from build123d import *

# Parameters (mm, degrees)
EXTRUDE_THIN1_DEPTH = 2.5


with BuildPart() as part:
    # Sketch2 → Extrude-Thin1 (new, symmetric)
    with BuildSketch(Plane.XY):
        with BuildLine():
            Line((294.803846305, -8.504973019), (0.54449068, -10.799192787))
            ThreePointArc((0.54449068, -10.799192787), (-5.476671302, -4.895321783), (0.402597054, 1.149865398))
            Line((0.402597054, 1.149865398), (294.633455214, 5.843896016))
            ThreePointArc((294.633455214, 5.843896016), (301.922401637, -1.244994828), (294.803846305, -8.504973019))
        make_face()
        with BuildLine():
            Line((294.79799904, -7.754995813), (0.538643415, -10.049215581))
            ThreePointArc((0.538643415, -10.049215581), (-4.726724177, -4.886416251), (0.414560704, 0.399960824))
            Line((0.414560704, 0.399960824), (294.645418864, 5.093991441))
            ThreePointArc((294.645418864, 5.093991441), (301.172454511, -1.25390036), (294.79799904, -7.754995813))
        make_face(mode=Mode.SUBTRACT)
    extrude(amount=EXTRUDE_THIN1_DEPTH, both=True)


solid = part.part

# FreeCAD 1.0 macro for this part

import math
import FreeCAD as App
import Part
import Sketcher
from FreeCAD import Vector

doc = App.newDocument("Part")
params = doc.addObject("Spreadsheet::Sheet", "Params")
for row, (alias, value) in enumerate([
    ("pad1_length", "5 mm"),
], start=1):
    params.set(f"A{row}", alias)
    params.set(f"B{row}", "=" + value)
    params.setAlias(f"B{row}", alias)

body = doc.addObject("PartDesign::Body", "Body")

# Sketch on XY plane
sketch1 = doc.addObject("Sketcher::SketchObject", "Sketch")
body.addObject(sketch1)
sketch1.AttachmentSupport = (doc.XY_Plane, [""])
sketch1.MapMode = "FlatFace"
sketch1.addGeometry(Part.LineSegment(Vector(1, -11, 0), Vector(295, -9, 0)), False)
sketch1.addGeometry(Part.ArcOfCircle(Part.Circle(Vector(295, -1, 0), Vector(0, 0, 1), 7), math.radians(-90), math.radians(91)), False)
sketch1.addGeometry(Part.LineSegment(Vector(295, 6, 0), Vector(0, 1, 0)), False)
sketch1.addGeometry(Part.ArcOfCircle(Part.Circle(Vector(0, -5, 0), Vector(0, 0, 1), 6), math.radians(91), math.radians(270)), False)
sketch1.addGeometry(Part.LineSegment(Vector(295, -8, 0), Vector(1, -10, 0)), False)
sketch1.addGeometry(Part.ArcOfCircle(Part.Circle(Vector(0, -5, 0), Vector(0, 0, 1), 5), math.radians(91), math.radians(270)), False)
sketch1.addGeometry(Part.LineSegment(Vector(0, 0, 0), Vector(295, 5, 0)), False)
sketch1.addGeometry(Part.ArcOfCircle(Part.Circle(Vector(295, -1, 0), Vector(0, 0, 1), 6), math.radians(-90), math.radians(91)), False)
sketch1.addConstraint(Sketcher.Constraint("Tangent", 0, 2, 1, 1))
sketch1.addConstraint(Sketcher.Constraint("Tangent", 1, 2, 2, 1))
sketch1.addConstraint(Sketcher.Constraint("Tangent", 2, 2, 3, 1))
sketch1.addConstraint(Sketcher.Constraint("Tangent", 3, 2, 0, 1))
sketch1.addConstraint(Sketcher.Constraint("Tangent", 4, 2, 5, 2))
sketch1.addConstraint(Sketcher.Constraint("Tangent", 5, 1, 6, 1))
sketch1.addConstraint(Sketcher.Constraint("Tangent", 6, 2, 7, 2))
sketch1.addConstraint(Sketcher.Constraint("Tangent", 7, 1, 4, 1))
sketch1.addConstraint(Sketcher.Constraint("Coincident", 5, 3, 3, 3))
sketch1.addConstraint(Sketcher.Constraint("Coincident", 7, 3, 1, 3))
sketch1.addConstraint(Sketcher.Constraint("Parallel", 0, 4))
sketch1.addConstraint(Sketcher.Constraint("Radius", 1, 7.175))
sketch1.addConstraint(Sketcher.Constraint("Radius", 3, 5.975))
sketch1.addConstraint(Sketcher.Constraint("Radius", 5, 5.225))
sketch1.addConstraint(Sketcher.Constraint("DistanceX", 3, 3, 1, 3, 294.25))
sketch1.addConstraint(Sketcher.Constraint("DistanceX", -1, 1, 7, 1, 294.797999))
sketch1.addConstraint(Sketcher.Constraint("DistanceY", 3, 2, 1, 3, 9.469002))
sketch1.addConstraint(Sketcher.Constraint("DistanceY", 1, 3, -1, 1, 1.330191))
pad1 = doc.addObject("PartDesign::Pad", "Pad")
body.addObject(pad1)
pad1.Profile = sketch1
pad1.setExpression("Length", "Params.pad1_length")
pad1.Midplane = True

doc.recompute()
